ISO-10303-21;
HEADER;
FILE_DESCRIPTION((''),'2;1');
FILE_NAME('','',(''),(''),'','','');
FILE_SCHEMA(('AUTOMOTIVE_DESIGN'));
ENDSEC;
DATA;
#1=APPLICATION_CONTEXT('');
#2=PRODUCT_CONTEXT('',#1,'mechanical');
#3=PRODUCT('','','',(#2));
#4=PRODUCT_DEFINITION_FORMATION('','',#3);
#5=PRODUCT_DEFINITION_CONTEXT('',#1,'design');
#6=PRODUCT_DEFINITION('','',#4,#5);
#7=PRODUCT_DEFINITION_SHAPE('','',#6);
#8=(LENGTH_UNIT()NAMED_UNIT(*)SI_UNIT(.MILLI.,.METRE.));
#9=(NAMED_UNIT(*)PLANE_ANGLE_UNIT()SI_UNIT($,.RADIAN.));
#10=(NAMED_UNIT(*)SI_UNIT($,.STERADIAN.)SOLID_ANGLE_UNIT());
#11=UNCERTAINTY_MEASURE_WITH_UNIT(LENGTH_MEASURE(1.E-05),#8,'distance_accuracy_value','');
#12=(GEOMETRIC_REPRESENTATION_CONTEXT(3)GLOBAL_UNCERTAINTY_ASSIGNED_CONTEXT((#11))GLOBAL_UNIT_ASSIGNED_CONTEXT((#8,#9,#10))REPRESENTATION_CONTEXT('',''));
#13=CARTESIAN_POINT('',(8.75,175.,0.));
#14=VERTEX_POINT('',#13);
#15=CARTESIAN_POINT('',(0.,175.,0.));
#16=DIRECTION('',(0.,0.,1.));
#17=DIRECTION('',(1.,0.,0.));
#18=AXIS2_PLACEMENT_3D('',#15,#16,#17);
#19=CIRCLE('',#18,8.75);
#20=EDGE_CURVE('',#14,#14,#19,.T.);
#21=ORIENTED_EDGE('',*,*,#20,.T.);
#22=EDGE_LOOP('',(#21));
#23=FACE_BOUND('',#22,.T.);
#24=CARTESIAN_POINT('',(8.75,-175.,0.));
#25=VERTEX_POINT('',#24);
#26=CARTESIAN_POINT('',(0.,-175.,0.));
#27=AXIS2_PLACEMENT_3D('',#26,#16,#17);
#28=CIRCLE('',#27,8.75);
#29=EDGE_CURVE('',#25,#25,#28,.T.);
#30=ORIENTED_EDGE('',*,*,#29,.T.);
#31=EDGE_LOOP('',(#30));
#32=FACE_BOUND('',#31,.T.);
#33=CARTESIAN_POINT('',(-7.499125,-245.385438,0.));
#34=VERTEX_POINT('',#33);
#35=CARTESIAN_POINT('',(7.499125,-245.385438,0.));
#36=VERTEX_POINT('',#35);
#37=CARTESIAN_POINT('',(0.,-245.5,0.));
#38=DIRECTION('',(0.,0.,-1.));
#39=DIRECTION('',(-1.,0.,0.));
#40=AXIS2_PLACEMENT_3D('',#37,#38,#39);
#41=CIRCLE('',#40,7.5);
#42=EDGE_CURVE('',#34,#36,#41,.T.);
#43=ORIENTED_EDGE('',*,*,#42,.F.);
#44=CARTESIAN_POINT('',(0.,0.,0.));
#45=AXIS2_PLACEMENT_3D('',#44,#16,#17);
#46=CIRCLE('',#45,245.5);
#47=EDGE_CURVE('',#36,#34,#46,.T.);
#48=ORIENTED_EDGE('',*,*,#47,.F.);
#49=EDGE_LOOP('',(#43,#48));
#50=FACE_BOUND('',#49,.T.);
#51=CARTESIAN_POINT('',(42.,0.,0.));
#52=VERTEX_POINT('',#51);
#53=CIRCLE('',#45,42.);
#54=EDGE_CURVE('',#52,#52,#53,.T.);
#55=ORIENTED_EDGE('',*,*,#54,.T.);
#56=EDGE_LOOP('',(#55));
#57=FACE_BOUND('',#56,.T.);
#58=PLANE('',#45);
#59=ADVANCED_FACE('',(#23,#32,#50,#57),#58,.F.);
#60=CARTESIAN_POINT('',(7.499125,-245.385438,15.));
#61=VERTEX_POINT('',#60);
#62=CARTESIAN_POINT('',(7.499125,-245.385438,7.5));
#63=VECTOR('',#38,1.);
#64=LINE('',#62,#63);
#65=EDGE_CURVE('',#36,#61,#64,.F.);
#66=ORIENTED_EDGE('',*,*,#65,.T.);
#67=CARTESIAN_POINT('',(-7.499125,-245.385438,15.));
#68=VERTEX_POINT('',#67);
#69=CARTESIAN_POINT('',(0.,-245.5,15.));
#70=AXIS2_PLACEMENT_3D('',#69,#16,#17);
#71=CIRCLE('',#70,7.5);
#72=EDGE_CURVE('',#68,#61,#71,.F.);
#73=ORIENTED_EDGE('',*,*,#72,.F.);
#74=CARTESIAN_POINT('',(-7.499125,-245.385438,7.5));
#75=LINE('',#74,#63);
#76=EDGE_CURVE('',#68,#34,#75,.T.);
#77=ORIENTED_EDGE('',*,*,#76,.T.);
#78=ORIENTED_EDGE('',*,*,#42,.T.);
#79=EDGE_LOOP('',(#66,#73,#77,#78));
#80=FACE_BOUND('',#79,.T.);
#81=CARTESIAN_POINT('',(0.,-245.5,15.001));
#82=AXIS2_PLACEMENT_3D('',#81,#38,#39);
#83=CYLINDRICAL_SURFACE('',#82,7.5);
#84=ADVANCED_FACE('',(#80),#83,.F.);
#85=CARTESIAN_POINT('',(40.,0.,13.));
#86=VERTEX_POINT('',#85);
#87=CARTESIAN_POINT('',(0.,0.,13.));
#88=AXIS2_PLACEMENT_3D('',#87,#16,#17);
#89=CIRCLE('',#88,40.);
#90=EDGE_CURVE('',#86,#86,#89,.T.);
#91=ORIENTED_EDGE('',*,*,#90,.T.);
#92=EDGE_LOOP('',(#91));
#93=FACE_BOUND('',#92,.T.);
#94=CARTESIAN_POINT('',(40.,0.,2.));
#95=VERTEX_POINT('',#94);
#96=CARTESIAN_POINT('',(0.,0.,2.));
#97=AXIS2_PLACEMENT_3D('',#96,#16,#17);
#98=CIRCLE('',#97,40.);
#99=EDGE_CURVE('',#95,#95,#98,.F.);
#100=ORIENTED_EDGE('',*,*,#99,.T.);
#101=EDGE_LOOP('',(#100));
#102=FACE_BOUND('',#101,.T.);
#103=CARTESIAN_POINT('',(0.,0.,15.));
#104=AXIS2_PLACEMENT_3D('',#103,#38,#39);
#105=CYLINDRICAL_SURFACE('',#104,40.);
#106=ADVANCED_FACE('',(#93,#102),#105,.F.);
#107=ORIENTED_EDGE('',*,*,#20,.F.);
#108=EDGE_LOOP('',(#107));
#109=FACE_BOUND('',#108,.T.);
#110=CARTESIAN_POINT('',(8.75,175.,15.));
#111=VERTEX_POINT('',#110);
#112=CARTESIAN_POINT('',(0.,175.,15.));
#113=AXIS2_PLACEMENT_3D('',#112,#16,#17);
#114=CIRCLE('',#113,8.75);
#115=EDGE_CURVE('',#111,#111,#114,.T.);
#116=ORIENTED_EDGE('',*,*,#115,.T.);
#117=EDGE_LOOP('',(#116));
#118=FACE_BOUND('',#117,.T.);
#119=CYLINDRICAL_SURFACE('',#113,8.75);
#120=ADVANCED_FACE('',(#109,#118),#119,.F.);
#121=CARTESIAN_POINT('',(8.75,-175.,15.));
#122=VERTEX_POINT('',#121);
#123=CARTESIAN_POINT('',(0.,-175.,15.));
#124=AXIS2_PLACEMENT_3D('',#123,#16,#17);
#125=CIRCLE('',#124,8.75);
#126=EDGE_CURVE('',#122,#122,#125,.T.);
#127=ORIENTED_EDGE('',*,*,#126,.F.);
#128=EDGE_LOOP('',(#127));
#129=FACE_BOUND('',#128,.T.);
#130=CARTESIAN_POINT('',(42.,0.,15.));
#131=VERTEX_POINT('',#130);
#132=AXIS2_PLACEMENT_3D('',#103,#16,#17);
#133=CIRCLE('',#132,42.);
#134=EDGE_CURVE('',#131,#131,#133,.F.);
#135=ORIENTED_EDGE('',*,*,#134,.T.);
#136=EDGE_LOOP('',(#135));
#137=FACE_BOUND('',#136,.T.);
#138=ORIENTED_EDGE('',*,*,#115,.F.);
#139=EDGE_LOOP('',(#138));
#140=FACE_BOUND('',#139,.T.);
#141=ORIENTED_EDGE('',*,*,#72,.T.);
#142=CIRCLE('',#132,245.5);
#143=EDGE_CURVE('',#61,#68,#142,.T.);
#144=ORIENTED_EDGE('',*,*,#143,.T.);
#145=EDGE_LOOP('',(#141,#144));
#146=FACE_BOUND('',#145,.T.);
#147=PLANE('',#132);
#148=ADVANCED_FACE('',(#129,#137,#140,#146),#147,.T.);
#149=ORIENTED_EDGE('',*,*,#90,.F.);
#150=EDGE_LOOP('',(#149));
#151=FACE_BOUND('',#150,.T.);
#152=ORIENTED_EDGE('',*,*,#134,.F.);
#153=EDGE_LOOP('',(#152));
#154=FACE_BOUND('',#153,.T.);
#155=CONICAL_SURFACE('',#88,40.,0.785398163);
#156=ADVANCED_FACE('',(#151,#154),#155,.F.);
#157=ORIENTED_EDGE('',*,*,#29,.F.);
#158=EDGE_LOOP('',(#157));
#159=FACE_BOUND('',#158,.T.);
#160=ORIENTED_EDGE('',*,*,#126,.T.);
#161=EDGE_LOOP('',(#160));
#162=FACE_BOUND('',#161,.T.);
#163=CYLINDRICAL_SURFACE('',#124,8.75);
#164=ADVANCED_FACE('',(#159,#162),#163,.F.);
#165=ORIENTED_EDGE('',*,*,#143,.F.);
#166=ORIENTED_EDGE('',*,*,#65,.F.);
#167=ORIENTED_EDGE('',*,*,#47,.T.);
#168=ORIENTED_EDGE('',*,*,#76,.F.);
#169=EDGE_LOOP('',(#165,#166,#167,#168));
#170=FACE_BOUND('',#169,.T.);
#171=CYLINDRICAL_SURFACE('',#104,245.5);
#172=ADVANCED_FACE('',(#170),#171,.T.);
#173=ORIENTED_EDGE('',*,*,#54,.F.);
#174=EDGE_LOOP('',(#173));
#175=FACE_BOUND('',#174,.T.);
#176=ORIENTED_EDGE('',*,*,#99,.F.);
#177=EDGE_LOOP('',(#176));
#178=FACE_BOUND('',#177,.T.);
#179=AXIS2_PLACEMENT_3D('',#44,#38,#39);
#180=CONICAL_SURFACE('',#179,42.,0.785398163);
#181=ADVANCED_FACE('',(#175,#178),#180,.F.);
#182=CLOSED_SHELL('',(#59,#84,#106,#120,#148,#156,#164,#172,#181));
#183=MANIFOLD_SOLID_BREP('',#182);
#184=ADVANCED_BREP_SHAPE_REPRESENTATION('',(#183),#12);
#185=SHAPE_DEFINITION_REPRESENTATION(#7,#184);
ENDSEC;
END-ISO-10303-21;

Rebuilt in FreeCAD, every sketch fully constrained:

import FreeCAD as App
import Part
import Sketcher


def edges_at(feature, points):
    """Names of the edges that pass closest to the given points."""
    edges = feature.Shape.Edges
    near = lambda p: min(range(len(edges)), key=lambda i: edges[i].distToShape(Part.Vertex(*p))[0])
    return sorted({f"Edge{near(p) + 1}" for p in points})

doc = App.newDocument("Part")
body = doc.addObject("PartDesign::Body", "Body")

sketch1 = body.newObject("Sketcher::SketchObject", "Sketch")
sketch1.AttachmentSupport = (doc.getObject("XY_Plane"), [""])
sketch1.MapMode = "FlatFace"
sketch1.addGeometry([
    Part.Circle(App.Vector(0, 0, 0), App.Vector(0, 0, 1), 246),
    Part.Circle(App.Vector(0, 0, 0), App.Vector(0, 0, 1), 40),
], False)
sketch1.addConstraint([
    Sketcher.Constraint("Coincident", 0, 3, -1, 1),
    Sketcher.Constraint("Coincident", 1, 3, -1, 1),
    Sketcher.Constraint("Diameter", 0, 491.0),
    Sketcher.Constraint("Diameter", 1, 80.0),
])
pad1 = body.newObject("PartDesign::Pad", "Pad")
pad1.Profile = sketch1
pad1.Length = 15

sketch2 = body.newObject("Sketcher::SketchObject", "Sketch001")
sketch2.AttachmentSupport = (doc.getObject("XY_Plane"), [""])
sketch2.MapMode = "FlatFace"
sketch2.AttachmentOffset = App.Placement(App.Vector(0, 0, 15), App.Rotation())
sketch2.addGeometry([
    Part.Circle(App.Vector(0, 175, 0), App.Vector(0, 0, 1), 9),
    Part.Circle(App.Vector(0, -175, 0), App.Vector(0, 0, 1), 9),
], False)
sketch2.addConstraint([
    Sketcher.Constraint("Equal", 0, 1),
    Sketcher.Constraint("Symmetric", 0, 3, 1, 3, -1, 1),
    Sketcher.Constraint("PointOnObject", 0, 3, -2),
    Sketcher.Constraint("Diameter", 0, 17.5),
    Sketcher.Constraint("DistanceY", -1, 1, 0, 3, 175.0),
])
doc.recompute()
hole = body.newObject("PartDesign::Hole", "Hole")
hole.Profile = sketch2
hole.ThreadType = "None"
hole.Diameter = 17.5
hole.DepthType = "Dimension"
hole.Depth = 15
hole.DrillPoint = "Flat"
doc.recompute()

chamfer = body.newObject("PartDesign::Chamfer", "Chamfer")
chamfer.Base = (hole, edges_at(hole, [(-40, 0, 0), (-40, 0, 15)]))
chamfer.Size = 2

sketch3 = body.newObject("Sketcher::SketchObject", "Sketch002")
sketch3.AttachmentSupport = (doc.getObject("XY_Plane"), [""])
sketch3.MapMode = "FlatFace"
sketch3.addGeometry(Part.Circle(App.Vector(0, -246, 0), App.Vector(0, 0, 1), 8), False)
sketch3.addConstraint([
    Sketcher.Constraint("PointOnObject", 0, 3, -2),
    Sketcher.Constraint("Diameter", 0, 15.0),
    Sketcher.Constraint("DistanceY", 0, 3, -1, 1, 245.5),
])
pocket1 = body.newObject("PartDesign::Pocket", "Pocket")
pocket1.Profile = sketch3
pocket1.Type = "UpToFirst"
pocket1.Reversed = True

doc.recompute()
